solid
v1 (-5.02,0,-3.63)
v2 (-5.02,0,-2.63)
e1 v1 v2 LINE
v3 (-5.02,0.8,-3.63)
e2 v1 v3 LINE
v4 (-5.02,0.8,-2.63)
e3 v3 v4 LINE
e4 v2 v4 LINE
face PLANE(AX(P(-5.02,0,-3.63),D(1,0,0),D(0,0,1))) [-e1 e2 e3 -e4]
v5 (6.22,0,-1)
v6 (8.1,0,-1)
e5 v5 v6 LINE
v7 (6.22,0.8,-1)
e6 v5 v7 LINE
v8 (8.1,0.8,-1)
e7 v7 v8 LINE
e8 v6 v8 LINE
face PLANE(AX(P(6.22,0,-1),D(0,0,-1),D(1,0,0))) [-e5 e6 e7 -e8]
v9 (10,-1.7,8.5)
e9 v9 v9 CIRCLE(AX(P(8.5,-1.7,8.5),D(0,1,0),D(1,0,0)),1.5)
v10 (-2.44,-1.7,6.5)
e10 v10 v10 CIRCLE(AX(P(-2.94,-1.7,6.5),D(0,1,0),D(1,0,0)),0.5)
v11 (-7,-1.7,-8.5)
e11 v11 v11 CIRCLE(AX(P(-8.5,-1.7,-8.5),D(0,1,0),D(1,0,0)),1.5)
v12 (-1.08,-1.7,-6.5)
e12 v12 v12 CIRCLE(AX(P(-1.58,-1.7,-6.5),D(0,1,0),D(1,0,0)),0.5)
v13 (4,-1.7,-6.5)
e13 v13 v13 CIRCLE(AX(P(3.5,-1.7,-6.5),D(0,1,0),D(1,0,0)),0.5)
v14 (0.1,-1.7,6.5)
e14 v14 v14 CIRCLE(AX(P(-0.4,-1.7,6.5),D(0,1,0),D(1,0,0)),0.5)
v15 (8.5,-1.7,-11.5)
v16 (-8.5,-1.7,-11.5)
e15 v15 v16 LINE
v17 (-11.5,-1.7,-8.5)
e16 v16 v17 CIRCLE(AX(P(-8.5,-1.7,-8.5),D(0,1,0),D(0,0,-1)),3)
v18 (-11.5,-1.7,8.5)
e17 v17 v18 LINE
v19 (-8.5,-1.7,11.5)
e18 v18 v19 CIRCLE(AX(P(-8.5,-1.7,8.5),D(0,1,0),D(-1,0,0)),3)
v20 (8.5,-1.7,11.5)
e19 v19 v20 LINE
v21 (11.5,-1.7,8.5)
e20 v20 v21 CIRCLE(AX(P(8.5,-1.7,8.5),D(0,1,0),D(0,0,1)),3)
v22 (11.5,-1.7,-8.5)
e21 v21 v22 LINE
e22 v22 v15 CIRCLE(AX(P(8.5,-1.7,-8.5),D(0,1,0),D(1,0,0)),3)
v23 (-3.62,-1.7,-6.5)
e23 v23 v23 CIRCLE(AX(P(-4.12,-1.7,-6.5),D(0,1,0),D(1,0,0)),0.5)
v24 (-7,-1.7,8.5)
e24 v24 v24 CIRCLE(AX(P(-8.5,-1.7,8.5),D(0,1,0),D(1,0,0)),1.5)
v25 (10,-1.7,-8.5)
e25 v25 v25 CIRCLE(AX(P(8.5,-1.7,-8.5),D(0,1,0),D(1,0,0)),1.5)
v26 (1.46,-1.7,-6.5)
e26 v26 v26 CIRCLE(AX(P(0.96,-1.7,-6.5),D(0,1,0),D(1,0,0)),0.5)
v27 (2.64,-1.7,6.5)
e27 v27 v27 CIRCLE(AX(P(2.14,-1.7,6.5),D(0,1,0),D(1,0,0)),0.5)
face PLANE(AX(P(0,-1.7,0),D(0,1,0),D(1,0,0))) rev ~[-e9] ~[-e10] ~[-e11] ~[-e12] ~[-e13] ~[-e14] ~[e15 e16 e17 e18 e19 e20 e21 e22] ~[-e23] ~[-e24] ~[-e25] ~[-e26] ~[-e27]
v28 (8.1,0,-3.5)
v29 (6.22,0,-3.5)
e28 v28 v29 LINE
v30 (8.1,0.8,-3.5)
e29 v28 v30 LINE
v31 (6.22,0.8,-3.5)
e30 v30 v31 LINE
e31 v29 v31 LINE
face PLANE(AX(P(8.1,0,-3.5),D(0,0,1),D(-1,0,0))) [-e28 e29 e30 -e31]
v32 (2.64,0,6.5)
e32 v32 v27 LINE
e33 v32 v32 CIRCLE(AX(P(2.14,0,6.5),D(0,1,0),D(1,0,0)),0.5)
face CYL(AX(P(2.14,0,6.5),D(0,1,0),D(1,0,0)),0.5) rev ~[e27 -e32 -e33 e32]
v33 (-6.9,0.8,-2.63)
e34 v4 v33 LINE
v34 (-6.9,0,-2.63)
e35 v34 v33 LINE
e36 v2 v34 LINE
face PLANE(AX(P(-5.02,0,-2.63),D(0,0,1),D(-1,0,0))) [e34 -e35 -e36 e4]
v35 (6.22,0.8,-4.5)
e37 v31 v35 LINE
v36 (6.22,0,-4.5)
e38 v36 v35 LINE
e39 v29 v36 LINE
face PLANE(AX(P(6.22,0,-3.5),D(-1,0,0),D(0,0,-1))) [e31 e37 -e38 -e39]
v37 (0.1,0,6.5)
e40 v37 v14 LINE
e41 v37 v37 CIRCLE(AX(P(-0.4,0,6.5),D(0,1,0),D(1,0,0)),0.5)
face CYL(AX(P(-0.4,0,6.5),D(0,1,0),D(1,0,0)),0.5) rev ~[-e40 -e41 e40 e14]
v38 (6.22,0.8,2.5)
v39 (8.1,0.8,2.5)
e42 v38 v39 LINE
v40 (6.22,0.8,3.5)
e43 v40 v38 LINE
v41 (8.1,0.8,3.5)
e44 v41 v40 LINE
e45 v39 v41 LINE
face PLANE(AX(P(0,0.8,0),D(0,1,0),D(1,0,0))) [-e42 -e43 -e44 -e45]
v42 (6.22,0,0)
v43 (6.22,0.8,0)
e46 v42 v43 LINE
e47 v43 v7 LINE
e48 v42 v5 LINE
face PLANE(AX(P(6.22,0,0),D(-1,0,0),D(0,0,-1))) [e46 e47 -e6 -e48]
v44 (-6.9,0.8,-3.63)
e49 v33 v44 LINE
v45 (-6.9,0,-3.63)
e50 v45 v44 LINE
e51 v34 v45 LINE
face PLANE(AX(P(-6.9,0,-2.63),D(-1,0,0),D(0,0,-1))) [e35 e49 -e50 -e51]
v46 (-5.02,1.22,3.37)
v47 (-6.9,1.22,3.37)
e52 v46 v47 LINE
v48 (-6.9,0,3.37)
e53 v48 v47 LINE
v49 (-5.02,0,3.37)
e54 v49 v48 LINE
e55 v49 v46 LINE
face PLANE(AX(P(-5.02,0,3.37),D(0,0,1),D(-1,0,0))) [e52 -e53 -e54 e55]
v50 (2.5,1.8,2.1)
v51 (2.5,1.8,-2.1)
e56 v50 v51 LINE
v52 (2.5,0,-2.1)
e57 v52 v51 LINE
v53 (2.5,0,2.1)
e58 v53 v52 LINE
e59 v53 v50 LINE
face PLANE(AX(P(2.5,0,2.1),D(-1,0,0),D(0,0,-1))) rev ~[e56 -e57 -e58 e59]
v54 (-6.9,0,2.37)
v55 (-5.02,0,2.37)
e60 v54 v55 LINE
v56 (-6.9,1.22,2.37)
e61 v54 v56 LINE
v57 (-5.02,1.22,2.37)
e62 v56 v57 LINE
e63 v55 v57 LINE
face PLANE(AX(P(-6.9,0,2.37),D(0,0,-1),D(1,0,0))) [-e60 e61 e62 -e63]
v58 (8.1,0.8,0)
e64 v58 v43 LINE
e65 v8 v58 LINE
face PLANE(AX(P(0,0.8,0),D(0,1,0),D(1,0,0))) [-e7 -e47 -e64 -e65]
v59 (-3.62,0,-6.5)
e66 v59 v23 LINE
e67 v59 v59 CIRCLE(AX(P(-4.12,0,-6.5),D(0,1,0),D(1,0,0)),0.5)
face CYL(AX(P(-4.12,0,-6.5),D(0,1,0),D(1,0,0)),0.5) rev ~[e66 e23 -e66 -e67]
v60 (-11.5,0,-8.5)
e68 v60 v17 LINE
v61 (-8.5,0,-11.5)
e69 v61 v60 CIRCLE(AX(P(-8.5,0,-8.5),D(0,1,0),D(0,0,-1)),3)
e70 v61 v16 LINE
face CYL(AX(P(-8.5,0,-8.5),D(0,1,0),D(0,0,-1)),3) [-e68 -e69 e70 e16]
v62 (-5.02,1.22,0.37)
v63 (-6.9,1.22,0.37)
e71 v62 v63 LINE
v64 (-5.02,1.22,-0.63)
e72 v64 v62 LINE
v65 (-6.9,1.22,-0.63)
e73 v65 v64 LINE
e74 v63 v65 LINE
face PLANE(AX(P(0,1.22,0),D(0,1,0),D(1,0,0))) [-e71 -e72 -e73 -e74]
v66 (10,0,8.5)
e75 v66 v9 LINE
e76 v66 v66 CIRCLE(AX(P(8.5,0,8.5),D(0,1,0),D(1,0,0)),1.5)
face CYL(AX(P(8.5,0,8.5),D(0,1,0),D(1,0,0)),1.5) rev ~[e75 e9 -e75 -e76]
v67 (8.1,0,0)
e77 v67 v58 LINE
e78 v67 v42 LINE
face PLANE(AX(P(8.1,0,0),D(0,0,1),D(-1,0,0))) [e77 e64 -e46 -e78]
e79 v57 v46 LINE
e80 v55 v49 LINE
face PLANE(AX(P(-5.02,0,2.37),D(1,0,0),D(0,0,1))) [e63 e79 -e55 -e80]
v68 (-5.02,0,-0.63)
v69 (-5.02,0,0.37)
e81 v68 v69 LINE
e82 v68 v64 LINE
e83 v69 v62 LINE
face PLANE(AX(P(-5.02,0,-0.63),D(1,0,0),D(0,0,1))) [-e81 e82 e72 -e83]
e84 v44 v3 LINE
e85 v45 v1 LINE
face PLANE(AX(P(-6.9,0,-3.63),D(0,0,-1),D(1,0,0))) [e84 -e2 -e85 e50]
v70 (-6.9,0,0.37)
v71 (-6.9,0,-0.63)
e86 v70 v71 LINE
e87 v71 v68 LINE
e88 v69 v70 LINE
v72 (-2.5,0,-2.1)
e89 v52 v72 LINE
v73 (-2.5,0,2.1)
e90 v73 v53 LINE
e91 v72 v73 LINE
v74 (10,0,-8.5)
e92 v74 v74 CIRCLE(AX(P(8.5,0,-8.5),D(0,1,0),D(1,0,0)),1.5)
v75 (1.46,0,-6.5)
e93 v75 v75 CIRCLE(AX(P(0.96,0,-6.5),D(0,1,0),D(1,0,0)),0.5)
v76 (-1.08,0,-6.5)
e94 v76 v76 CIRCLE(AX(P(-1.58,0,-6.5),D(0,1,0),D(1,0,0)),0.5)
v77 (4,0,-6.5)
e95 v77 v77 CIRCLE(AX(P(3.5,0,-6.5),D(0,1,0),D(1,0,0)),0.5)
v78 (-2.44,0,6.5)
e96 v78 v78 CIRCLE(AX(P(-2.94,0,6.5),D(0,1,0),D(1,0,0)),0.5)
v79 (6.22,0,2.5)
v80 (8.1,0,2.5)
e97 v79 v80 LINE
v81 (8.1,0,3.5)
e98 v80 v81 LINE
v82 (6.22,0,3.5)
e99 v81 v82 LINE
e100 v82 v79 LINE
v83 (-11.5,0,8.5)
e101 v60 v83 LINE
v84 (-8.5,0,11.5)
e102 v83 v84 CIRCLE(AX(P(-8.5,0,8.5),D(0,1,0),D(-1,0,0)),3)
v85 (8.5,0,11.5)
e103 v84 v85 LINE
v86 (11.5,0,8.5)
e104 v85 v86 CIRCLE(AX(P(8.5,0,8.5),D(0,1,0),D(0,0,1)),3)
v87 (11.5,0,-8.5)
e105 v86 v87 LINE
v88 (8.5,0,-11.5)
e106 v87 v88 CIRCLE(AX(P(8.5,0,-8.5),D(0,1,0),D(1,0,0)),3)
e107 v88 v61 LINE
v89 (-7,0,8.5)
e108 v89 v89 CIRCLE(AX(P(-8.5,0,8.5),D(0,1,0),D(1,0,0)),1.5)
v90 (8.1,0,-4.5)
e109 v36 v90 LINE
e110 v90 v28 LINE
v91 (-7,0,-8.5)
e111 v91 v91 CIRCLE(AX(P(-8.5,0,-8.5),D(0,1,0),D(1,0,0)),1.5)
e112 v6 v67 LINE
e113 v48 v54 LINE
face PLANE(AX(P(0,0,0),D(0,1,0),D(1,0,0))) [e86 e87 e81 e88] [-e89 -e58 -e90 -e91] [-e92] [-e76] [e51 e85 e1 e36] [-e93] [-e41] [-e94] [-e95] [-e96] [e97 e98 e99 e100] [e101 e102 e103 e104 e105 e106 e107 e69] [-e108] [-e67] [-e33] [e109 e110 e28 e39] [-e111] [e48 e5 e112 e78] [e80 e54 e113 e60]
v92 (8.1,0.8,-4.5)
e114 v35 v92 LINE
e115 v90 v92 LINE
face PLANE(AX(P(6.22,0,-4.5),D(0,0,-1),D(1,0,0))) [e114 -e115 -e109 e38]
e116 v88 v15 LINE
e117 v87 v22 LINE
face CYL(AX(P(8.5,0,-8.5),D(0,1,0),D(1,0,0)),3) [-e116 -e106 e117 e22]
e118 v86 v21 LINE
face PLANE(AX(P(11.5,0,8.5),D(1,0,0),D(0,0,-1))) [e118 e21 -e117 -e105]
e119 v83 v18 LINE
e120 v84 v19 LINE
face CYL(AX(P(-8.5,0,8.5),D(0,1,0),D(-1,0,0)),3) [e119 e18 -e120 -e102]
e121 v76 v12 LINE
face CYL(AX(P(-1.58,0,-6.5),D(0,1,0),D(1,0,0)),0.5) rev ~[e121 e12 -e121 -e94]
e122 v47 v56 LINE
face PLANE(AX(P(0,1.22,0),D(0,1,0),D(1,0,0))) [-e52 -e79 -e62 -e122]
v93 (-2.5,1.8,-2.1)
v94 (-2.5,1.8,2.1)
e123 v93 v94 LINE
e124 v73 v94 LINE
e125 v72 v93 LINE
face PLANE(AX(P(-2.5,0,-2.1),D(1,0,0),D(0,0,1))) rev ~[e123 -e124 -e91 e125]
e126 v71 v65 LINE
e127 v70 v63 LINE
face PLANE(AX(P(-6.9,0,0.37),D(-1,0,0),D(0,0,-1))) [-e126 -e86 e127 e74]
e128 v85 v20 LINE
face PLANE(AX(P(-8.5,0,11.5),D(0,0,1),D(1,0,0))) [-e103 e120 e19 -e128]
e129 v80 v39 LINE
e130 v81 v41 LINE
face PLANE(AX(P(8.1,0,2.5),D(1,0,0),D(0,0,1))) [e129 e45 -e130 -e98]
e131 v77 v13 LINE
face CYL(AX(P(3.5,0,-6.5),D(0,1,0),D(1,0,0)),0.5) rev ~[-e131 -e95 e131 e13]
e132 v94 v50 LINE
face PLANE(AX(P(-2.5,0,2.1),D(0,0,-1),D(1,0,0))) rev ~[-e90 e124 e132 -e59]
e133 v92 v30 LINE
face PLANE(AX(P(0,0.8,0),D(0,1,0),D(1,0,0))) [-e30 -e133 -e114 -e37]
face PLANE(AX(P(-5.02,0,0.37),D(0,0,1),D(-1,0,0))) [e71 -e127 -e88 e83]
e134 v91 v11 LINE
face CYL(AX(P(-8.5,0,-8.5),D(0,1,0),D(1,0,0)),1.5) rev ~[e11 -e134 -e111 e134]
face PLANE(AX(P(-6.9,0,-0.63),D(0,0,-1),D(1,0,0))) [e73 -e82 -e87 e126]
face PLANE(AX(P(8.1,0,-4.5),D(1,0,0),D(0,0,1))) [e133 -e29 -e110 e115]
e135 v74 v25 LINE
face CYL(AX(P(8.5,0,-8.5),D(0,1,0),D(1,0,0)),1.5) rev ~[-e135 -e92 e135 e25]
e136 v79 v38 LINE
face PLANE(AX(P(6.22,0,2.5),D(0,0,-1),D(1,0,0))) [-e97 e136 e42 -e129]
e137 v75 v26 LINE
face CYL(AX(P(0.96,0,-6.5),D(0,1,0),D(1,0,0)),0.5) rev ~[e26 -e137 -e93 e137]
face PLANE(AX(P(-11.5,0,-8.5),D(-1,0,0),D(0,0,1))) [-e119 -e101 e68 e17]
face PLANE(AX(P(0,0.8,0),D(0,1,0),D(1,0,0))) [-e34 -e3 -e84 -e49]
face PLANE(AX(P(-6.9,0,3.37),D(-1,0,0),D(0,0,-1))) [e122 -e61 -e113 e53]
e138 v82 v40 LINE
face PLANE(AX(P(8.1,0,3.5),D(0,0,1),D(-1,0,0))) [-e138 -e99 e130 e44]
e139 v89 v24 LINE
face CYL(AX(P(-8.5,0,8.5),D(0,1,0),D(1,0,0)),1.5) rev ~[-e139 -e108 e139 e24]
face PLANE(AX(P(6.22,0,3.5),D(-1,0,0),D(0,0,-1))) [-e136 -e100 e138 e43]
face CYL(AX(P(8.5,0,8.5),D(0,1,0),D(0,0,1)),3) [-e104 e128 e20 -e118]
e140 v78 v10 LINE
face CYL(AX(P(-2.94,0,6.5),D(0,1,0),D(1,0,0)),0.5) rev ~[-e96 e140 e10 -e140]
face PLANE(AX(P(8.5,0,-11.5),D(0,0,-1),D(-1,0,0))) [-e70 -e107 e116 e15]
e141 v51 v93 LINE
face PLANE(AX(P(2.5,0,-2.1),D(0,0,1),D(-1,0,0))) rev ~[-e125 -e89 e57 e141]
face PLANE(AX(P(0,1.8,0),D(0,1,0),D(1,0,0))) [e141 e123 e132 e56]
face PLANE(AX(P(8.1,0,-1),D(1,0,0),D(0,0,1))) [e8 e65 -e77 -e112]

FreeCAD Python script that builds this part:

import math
import FreeCAD as App
import Part
import Sketcher
from FreeCAD import Vector


def add_polygon(sketch, points):
    """Adds a closed chain of lines whose ends are joined by coincident constraints."""
    first, n = sketch.GeometryCount, len(points)
    for a, b in zip(points, points[1:] + points[:1]):
        sketch.addGeometry(Part.LineSegment(App.Vector(*a, 0), App.Vector(*b, 0)), False)
    for i in range(n):
        sketch.addConstraint(Sketcher.Constraint("Coincident", first + i, 2, first + (i + 1) % n, 1))

doc = App.newDocument("Part")
body = doc.addObject("PartDesign::Body", "Body")

# Sketch on XZ plane
sketch1 = doc.addObject("Sketcher::SketchObject", "Sketch")
body.addObject(sketch1)
sketch1.AttachmentSupport = (doc.XZ_Plane, [""])
sketch1.MapMode = "FlatFace"
sketch1.addGeometry(Part.ArcOfCircle(Part.Circle(Vector(-8.5, 8.5, 0), Vector(0, 0, 1), 3), math.radians(90), math.radians(180)), False)
sketch1.addGeometry(Part.LineSegment(Vector(-8.5, 11.5, 0), Vector(8.5, 11.5, 0)), False)
sketch1.addGeometry(Part.ArcOfCircle(Part.Circle(Vector(8.5, 8.5, 0), Vector(0, 0, 1), 3), math.radians(0), math.radians(90)), False)
sketch1.addGeometry(Part.LineSegment(Vector(11.5, 8.5, 0), Vector(11.5, -8.5, 0)), False)
sketch1.addGeometry(Part.ArcOfCircle(Part.Circle(Vector(8.5, -8.5, 0), Vector(0, 0, 1), 3), math.radians(-90), math.radians(0)), False)
sketch1.addGeometry(Part.LineSegment(Vector(8.5, -11.5, 0), Vector(-8.5, -11.5, 0)), False)
sketch1.addGeometry(Part.ArcOfCircle(Part.Circle(Vector(-8.5, -8.5, 0), Vector(0, 0, 1), 3), math.radians(180), math.radians(270)), False)
sketch1.addGeometry(Part.LineSegment(Vector(-11.5, -8.5, 0), Vector(-11.5, 8.5, 0)), False)
sketch1.addGeometry(Part.Circle(Vector(-8.5, 8.5, 0), Vector(0, 0, 1), 1.5), False)
sketch1.addGeometry(Part.Circle(Vector(-2.9, 6.5, 0), Vector(0, 0, 1), 0.5), False)
sketch1.addGeometry(Part.Circle(Vector(-0.4, 6.5, 0), Vector(0, 0, 1), 0.5), False)
sketch1.addGeometry(Part.Circle(Vector(2.1, 6.5, 0), Vector(0, 0, 1), 0.5), False)
sketch1.addGeometry(Part.Circle(Vector(8.5, 8.5, 0), Vector(0, 0, 1), 1.5), False)
sketch1.addGeometry(Part.Circle(Vector(-8.5, -8.5, 0), Vector(0, 0, 1), 1.5), False)
sketch1.addGeometry(Part.Circle(Vector(-4.1, -6.5, 0), Vector(0, 0, 1), 0.5), False)
sketch1.addGeometry(Part.Circle(Vector(-1.6, -6.5, 0), Vector(0, 0, 1), 0.5), False)
sketch1.addGeometry(Part.Circle(Vector(1, -6.5, 0), Vector(0, 0, 1), 0.5), False)
sketch1.addGeometry(Part.Circle(Vector(3.5, -6.5, 0), Vector(0, 0, 1), 0.5), False)
sketch1.addGeometry(Part.Circle(Vector(8.5, -8.5, 0), Vector(0, 0, 1), 1.5), False)
sketch1.addConstraint(Sketcher.Constraint("Tangent", 0, 1, 1, 1))
sketch1.addConstraint(Sketcher.Constraint("Tangent", 1, 2, 2, 2))
sketch1.addConstraint(Sketcher.Constraint("Tangent", 2, 1, 3, 1))
sketch1.addConstraint(Sketcher.Constraint("Tangent", 3, 2, 4, 2))
sketch1.addConstraint(Sketcher.Constraint("Tangent", 4, 1, 5, 1))
sketch1.addConstraint(Sketcher.Constraint("Tangent", 5, 2, 6, 2))
sketch1.addConstraint(Sketcher.Constraint("Tangent", 6, 1, 7, 1))
sketch1.addConstraint(Sketcher.Constraint("Tangent", 7, 2, 0, 2))
sketch1.addConstraint(Sketcher.Constraint("Horizontal", 1))
sketch1.addConstraint(Sketcher.Constraint("Vertical", 3))
sketch1.addConstraint(Sketcher.Constraint("Horizontal", 5))
sketch1.addConstraint(Sketcher.Constraint("Vertical", 7))
sketch1.addConstraint(Sketcher.Constraint("Coincident", 8, 3, 0, 3))
sketch1.addConstraint(Sketcher.Constraint("Coincident", 12, 3, 2, 3))
sketch1.addConstraint(Sketcher.Constraint("Coincident", 13, 3, 6, 3))
sketch1.addConstraint(Sketcher.Constraint("Coincident", 18, 3, 4, 3))
sketch1.addConstraint(Sketcher.Constraint("Equal", 0, 2))
sketch1.addConstraint(Sketcher.Constraint("Equal", 2, 4))
sketch1.addConstraint(Sketcher.Constraint("Equal", 4, 6))
sketch1.addConstraint(Sketcher.Constraint("Equal", 9, 10))
sketch1.addConstraint(Sketcher.Constraint("Equal", 10, 11))
sketch1.addConstraint(Sketcher.Constraint("Equal", 8, 12))
sketch1.addConstraint(Sketcher.Constraint("Equal", 12, 13))
sketch1.addConstraint(Sketcher.Constraint("Equal", 11, 14))
sketch1.addConstraint(Sketcher.Constraint("Equal", 14, 15))
sketch1.addConstraint(Sketcher.Constraint("Equal", 15, 16))
sketch1.addConstraint(Sketcher.Constraint("Equal", 16, 17))
sketch1.addConstraint(Sketcher.Constraint("Equal", 13, 18))
sketch1.addConstraint(Sketcher.Constraint("Symmetric", 0, 3, 4, 3, -1, 1))
sketch1.addConstraint(Sketcher.Constraint("Horizontal", 9, 3, 10, 3))
sketch1.addConstraint(Sketcher.Constraint("Horizontal", 10, 3, 11, 3))
sketch1.addConstraint(Sketcher.Constraint("Horizontal", 14, 3, 15, 3))
sketch1.addConstraint(Sketcher.Constraint("Horizontal", 15, 3, 16, 3))
sketch1.addConstraint(Sketcher.Constraint("Horizontal", 16, 3, 17, 3))
sketch1.addConstraint(Sketcher.Constraint("Equal", 5, 3))
sketch1.addConstraint(Sketcher.Constraint("Diameter", 8, 3.0))
sketch1.addConstraint(Sketcher.Constraint("Diameter", 9, 1.0))
sketch1.addConstraint(Sketcher.Constraint("Radius", 0, 3.0))
sketch1.addConstraint(Sketcher.Constraint("DistanceX", 1, 1, 1, 2, 17.0))
sketch1.addConstraint(Sketcher.Constraint("DistanceY", 9, 3, 0, 3, 2.0))
sketch1.addConstraint(Sketcher.Constraint("DistanceY", 6, 3, 14, 3, 2.0))
sketch1.addConstraint(Sketcher.Constraint("DistanceX", 17, 3, 4, 3, 5.0))
sketch1.addConstraint(Sketcher.Constraint("DistanceX", 9, 3, 10, 3, 2.54))
sketch1.addConstraint(Sketcher.Constraint("DistanceX", 10, 3, 11, 3, 2.54))
sketch1.addConstraint(Sketcher.Constraint("DistanceX", 14, 3, 15, 3, 2.54))
sketch1.addConstraint(Sketcher.Constraint("DistanceX", 15, 3, 16, 3, 2.54))
sketch1.addConstraint(Sketcher.Constraint("DistanceX", 16, 3, 17, 3, 2.54))
sketch1.addConstraint(Sketcher.Constraint("DistanceX", 7, 2, 9, 3, 8.56))
pad1 = doc.addObject("PartDesign::Pad", "Pad")
body.addObject(pad1)
pad1.Profile = sketch1
pad1.Length = 1.7

# Sketch on XZ plane
sketch2 = doc.addObject("Sketcher::SketchObject", "Sketch001")
body.addObject(sketch2)
sketch2.AttachmentSupport = (doc.XZ_Plane, [""])
sketch2.MapMode = "FlatFace"
add_polygon(sketch2, [(-2.5, -2.1), (-2.5, 2.1), (2.5, 2.1), (2.5, -2.1)])  # lines 0-3
sketch2.addConstraint(Sketcher.Constraint("Vertical", 0))
sketch2.addConstraint(Sketcher.Constraint("Horizontal", 1))
sketch2.addConstraint(Sketcher.Constraint("Vertical", 2))
sketch2.addConstraint(Sketcher.Constraint("Horizontal", 3))
sketch2.addConstraint(Sketcher.Constraint("Symmetric", 0, 2, 2, 2, -1, 1))
sketch2.addConstraint(Sketcher.Constraint("DistanceX", 1, 1, 1, 2, 5.0))
sketch2.addConstraint(Sketcher.Constraint("DistanceY", 0, 1, 0, 2, 4.2))
pad2 = doc.addObject("PartDesign::Pad", "Pad001")
body.addObject(pad2)
pad2.Profile = sketch2
pad2.Length = 1.8
pad2.Reversed = True

# Sketch on XZ plane
sketch3 = doc.addObject("Sketcher::SketchObject", "Sketch002")
body.addObject(sketch3)
sketch3.AttachmentSupport = (doc.XZ_Plane, [""])
sketch3.MapMode = "FlatFace"
add_polygon(sketch3, [(-5, -3.6), (-6.9, -3.6), (-6.9, -2.6), (-5, -2.6)])  # lines 0-3
add_polygon(sketch3, [(8.1, -4.5), (6.2, -4.5), (6.2, -3.5), (8.1, -3.5)])  # lines 4-7
add_polygon(sketch3, [(8.1, -1), (6.2, -1), (6.2, 0), (8.1, 0)])  # lines 8-11
add_polygon(sketch3, [(8.1, 2.5), (6.2, 2.5), (6.2, 3.5), (8.1, 3.5)])  # lines 12-15
sketch3.addConstraint(Sketcher.Constraint("Horizontal", 0))
sketch3.addConstraint(Sketcher.Constraint("Vertical", 1))
sketch3.addConstraint(Sketcher.Constraint("Horizontal", 2))
sketch3.addConstraint(Sketcher.Constraint("Vertical", 3))
sketch3.addConstraint(Sketcher.Constraint("Horizontal", 4))
sketch3.addConstraint(Sketcher.Constraint("Vertical", 5))
sketch3.addConstraint(Sketcher.Constraint("Horizontal", 6))
sketch3.addConstraint(Sketcher.Constraint("Vertical", 7))
sketch3.addConstraint(Sketcher.Constraint("Horizontal", 8))
sketch3.addConstraint(Sketcher.Constraint("Vertical", 9))
sketch3.addConstraint(Sketcher.Constraint("Horizontal", 10))
sketch3.addConstraint(Sketcher.Constraint("Vertical", 11))
sketch3.addConstraint(Sketcher.Constraint("Horizontal", 12))
sketch3.addConstraint(Sketcher.Constraint("Vertical", 13))
sketch3.addConstraint(Sketcher.Constraint("Horizontal", 14))
sketch3.addConstraint(Sketcher.Constraint("Vertical", 15))
sketch3.addConstraint(Sketcher.Constraint("Symmetric", 5, 2, 13, 2, -1))
sketch3.addConstraint(Sketcher.Constraint("PointOnObject", 9, 2, -1))
sketch3.addConstraint(Sketcher.Constraint("Vertical", 5, 2, 8, 2))
sketch3.addConstraint(Sketcher.Constraint("Vertical", 7, 2, 10, 2))
sketch3.addConstraint(Sketcher.Constraint("Vertical", 11, 2, 14, 2))
sketch3.addConstraint(Sketcher.Constraint("Equal", 2, 4))
sketch3.addConstraint(Sketcher.Constraint("Equal", 3, 5))
sketch3.addConstraint(Sketcher.Constraint("Equal", 7, 9))
sketch3.addConstraint(Sketcher.Constraint("Equal", 11, 13))
sketch3.addConstraint(Sketcher.Constraint("DistanceY", 1, 1, 1, 2, 1.0))
sketch3.addConstraint(Sketcher.Constraint("DistanceX", 0, 2, 0, 1, 1.88))
sketch3.addConstraint(Sketcher.Constraint("DistanceY", -1, 1, 12, 2, 2.5))
sketch3.addConstraint(Sketcher.Constraint("DistanceX", 0, 2, 6, 2, 15.0))
sketch3.addConstraint(Sketcher.Constraint("DistanceX", 0, 2, -1, 1, 6.9))
sketch3.addConstraint(Sketcher.Constraint("DistanceY", 0, 2, -1, 1, 3.63))
pad3 = doc.addObject("PartDesign::Pad", "Pad002")
body.addObject(pad3)
pad3.Profile = sketch3
pad3.Length = 0.8
pad3.Reversed = True

# Sketch on XZ plane
sketch4 = doc.addObject("Sketcher::SketchObject", "Sketch003")
body.addObject(sketch4)
sketch4.AttachmentSupport = (doc.XZ_Plane, [""])
sketch4.MapMode = "FlatFace"
add_polygon(sketch4, [(-5, -0.6), (-6.9, -0.6), (-6.9, 0.4), (-5, 0.4)])  # lines 0-3
add_polygon(sketch4, [(-5, 2.4), (-6.9, 2.4), (-6.9, 3.4), (-5, 3.4)])  # lines 4-7
sketch4.addConstraint(Sketcher.Constraint("Horizontal", 0))
sketch4.addConstraint(Sketcher.Constraint("Vertical", 1))
sketch4.addConstraint(Sketcher.Constraint("Horizontal", 2))
sketch4.addConstraint(Sketcher.Constraint("Vertical", 3))
sketch4.addConstraint(Sketcher.Constraint("Horizontal", 4))
sketch4.addConstraint(Sketcher.Constraint("Vertical", 5))
sketch4.addConstraint(Sketcher.Constraint("Horizontal", 6))
sketch4.addConstraint(Sketcher.Constraint("Vertical", 7))
sketch4.addConstraint(Sketcher.Constraint("Vertical", 1, 2, 4, 2))
sketch4.addConstraint(Sketcher.Constraint("Vertical", 3, 2, 6, 2))
sketch4.addConstraint(Sketcher.Constraint("Equal", 3, 5))
sketch4.addConstraint(Sketcher.Constraint("DistanceY", 1, 1, 1, 2, 1.0))
sketch4.addConstraint(Sketcher.Constraint("DistanceY", 1, 2, 4, 2, 2.0))
sketch4.addConstraint(Sketcher.Constraint("DistanceX", 0, 2, 0, 1, 1.88))
sketch4.addConstraint(Sketcher.Constraint("DistanceX", 0, 2, -1, 1, 6.9))
sketch4.addConstraint(Sketcher.Constraint("DistanceY", 0, 2, -1, 1, 0.63))
pad4 = doc.addObject("PartDesign::Pad", "Pad003")
body.addObject(pad4)
pad4.Profile = sketch4
pad4.Length = 1.22
pad4.Reversed = True

doc.recompute()
